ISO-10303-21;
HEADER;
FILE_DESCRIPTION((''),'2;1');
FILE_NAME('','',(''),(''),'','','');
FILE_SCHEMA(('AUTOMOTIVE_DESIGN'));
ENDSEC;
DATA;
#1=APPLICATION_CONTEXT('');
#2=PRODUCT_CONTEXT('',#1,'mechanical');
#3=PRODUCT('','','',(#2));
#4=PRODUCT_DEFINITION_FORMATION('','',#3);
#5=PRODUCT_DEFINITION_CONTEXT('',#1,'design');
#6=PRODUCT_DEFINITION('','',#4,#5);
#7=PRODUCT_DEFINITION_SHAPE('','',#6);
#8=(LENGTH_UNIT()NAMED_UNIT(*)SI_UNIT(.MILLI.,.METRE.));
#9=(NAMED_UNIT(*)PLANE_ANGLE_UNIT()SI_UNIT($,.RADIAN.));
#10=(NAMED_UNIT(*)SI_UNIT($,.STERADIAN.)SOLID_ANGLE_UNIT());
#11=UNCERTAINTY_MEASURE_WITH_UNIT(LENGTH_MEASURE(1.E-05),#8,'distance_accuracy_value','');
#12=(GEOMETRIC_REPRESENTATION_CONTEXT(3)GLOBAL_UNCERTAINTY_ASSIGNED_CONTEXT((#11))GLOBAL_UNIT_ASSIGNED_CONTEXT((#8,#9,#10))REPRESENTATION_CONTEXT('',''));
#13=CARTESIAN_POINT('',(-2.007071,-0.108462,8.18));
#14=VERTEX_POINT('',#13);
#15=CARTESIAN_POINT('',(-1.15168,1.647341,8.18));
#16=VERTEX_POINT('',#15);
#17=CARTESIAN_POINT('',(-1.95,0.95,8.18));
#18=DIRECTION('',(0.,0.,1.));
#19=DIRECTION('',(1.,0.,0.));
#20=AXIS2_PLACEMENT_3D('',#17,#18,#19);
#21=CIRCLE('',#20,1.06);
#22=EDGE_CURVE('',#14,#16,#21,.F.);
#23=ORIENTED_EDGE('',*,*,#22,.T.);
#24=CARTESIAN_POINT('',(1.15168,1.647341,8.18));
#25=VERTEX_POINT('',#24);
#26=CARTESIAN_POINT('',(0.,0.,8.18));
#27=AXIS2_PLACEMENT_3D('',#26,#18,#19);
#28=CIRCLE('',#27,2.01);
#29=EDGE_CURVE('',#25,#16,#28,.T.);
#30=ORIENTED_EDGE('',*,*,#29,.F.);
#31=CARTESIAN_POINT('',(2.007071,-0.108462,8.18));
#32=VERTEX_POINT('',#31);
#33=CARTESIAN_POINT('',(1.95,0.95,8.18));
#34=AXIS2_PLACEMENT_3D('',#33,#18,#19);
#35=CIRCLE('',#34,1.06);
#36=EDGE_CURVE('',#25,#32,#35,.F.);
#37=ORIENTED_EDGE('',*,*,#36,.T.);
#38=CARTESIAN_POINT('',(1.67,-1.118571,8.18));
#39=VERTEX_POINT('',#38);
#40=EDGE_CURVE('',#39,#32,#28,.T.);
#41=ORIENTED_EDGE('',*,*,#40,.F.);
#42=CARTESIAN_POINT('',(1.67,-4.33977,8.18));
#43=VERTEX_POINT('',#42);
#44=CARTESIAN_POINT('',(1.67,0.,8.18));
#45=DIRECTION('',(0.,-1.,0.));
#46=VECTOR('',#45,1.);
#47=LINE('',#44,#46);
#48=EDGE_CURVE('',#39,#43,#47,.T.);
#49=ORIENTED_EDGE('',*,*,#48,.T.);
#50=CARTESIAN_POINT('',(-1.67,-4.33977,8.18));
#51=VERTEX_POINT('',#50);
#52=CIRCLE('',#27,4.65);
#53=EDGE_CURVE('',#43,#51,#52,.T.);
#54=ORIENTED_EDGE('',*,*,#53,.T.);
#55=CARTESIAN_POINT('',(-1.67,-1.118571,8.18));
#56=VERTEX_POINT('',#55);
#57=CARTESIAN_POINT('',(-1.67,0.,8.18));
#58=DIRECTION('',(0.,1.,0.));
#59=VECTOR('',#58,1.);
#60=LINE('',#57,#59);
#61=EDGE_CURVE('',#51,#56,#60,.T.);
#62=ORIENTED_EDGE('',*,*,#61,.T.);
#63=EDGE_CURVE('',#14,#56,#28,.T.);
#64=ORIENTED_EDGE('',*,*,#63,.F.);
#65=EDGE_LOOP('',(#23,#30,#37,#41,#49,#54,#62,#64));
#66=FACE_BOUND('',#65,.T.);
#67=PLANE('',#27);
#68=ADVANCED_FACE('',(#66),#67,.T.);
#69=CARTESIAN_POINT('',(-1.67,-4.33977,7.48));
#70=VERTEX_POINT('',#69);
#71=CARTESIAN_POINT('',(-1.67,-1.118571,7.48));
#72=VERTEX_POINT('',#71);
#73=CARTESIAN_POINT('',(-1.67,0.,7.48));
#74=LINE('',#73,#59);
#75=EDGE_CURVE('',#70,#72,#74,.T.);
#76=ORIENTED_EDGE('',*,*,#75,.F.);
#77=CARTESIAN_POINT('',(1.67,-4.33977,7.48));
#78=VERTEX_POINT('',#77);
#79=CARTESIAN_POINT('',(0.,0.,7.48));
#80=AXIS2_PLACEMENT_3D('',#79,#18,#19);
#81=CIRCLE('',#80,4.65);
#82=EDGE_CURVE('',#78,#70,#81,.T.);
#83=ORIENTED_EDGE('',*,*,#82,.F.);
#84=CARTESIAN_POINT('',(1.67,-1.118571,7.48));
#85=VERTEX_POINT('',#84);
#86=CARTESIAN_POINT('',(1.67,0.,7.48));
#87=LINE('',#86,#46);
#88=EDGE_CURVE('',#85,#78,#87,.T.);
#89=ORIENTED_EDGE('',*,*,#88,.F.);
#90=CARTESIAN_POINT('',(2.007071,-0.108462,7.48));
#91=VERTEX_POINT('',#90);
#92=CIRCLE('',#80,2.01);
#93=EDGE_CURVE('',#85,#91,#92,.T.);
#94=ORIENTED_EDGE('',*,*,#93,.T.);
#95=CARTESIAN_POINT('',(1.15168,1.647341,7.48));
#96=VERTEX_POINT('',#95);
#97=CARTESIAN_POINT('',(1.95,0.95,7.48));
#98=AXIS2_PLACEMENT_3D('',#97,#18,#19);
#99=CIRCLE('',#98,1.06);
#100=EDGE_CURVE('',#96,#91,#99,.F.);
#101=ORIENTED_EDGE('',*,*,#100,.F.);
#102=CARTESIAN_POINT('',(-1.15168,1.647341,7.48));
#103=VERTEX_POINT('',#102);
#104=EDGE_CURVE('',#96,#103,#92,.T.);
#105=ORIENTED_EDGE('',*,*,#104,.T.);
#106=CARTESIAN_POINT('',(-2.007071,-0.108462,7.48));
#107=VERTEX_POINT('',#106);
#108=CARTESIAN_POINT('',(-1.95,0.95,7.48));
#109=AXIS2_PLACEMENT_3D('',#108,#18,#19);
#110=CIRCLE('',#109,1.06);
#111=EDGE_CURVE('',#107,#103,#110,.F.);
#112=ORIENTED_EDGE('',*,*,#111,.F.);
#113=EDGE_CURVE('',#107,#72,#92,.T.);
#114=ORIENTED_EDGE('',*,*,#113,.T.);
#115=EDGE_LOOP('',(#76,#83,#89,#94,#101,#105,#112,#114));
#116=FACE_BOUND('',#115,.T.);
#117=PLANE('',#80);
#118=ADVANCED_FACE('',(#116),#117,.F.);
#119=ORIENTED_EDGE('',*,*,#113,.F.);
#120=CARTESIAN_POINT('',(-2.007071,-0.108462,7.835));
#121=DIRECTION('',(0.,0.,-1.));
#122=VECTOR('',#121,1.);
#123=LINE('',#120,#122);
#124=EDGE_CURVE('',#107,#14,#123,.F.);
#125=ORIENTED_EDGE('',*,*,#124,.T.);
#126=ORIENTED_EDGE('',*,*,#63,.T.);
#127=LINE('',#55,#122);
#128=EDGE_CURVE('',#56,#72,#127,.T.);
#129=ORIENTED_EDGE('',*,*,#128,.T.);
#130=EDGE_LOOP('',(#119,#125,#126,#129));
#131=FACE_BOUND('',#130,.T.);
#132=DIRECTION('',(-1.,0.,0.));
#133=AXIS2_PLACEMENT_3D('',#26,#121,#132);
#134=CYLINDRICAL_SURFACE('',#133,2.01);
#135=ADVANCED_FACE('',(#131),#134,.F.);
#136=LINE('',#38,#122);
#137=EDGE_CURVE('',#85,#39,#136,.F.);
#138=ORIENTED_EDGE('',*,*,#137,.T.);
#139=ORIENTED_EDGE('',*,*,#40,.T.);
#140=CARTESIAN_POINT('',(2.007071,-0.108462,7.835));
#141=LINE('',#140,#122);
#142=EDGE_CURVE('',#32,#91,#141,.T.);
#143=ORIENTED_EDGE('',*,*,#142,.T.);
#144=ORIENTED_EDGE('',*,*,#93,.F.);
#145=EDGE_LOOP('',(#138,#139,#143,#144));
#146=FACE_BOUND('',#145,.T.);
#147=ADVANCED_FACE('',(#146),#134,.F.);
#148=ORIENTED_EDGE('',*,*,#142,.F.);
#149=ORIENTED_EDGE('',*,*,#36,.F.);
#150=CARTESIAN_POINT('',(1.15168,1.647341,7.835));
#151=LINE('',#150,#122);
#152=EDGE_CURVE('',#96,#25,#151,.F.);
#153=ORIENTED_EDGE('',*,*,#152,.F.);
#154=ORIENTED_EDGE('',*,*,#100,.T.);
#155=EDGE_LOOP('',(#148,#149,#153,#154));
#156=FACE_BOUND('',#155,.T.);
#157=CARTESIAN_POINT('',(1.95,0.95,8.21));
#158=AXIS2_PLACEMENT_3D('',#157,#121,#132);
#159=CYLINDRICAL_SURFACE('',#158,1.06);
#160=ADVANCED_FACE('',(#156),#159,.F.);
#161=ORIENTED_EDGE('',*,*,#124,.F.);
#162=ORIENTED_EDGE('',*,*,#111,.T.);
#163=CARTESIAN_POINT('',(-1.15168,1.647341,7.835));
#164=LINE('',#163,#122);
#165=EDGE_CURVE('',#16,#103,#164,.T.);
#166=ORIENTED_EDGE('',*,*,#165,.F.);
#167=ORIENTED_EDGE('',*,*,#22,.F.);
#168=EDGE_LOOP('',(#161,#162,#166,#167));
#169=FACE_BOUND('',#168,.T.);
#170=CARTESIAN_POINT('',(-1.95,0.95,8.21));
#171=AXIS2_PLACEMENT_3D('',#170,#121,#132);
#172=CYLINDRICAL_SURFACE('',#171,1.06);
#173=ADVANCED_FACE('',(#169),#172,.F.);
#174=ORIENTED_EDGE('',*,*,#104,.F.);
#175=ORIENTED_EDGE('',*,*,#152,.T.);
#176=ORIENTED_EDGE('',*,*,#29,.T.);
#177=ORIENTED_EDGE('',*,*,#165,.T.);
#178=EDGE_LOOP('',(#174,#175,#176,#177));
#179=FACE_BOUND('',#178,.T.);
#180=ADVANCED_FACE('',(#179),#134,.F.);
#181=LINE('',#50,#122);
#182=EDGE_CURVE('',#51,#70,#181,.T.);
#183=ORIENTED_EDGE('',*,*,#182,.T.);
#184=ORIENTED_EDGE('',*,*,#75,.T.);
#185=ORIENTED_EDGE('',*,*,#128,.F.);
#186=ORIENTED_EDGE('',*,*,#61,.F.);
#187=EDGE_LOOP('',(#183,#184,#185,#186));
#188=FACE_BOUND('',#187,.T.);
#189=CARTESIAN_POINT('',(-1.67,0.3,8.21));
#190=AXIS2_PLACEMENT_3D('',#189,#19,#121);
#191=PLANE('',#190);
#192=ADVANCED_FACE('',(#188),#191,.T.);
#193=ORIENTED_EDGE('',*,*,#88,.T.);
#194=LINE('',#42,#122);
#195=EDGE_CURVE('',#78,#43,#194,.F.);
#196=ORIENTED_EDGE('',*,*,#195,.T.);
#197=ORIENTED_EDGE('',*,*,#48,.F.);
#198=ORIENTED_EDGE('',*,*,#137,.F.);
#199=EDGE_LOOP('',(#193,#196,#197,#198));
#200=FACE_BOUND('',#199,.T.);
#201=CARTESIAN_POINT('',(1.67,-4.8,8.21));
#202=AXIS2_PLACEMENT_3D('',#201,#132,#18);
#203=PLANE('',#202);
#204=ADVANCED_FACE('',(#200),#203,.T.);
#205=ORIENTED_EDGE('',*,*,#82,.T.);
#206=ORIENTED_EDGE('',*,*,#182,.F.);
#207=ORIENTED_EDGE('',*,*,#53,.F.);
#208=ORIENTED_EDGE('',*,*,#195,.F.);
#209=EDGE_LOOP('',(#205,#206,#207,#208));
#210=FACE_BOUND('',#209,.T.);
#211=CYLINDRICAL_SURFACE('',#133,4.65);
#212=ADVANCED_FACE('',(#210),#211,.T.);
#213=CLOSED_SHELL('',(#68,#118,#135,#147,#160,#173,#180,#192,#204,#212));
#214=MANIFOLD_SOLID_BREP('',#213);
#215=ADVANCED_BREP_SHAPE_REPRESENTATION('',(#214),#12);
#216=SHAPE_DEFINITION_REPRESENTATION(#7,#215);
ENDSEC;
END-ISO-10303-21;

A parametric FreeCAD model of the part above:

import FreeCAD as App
import Part
import Sketcher
from FreeCAD import Vector

doc = App.newDocument("Part")
params = doc.addObject("Spreadsheet::Sheet", "Params")
for row, (alias, value) in enumerate([
    ("sketch1_diameter", "9.3 mm"),
    ("sketch1_diameter2", "4.02 mm"),
    ("pad1_length", "0.7 mm"),
    ("sketch2_height", "5.1 mm"),
    ("sketch2_width", "3.34 mm"),
    ("pocket1_length", "0.75 mm"),
    ("sketch3_diameter", "2.12 mm"),
    ("pocket2_length", "0.75 mm"),
    ("sketch4_diameter", "2.12 mm"),
    ("pocket3_length", "0.75 mm"),
], start=1):
    params.set(f"A{row}", alias)
    params.set(f"B{row}", "=" + value)
    params.setAlias(f"B{row}", alias)

body = doc.addObject("PartDesign::Body", "Body")

# Sketch on XY plane
sketch1 = body.newObject("Sketcher::SketchObject", "Sketch")
sketch1.AttachmentSupport = (doc.getObject("XY_Plane"), [""])
sketch1.MapMode = "FlatFace"
sketch1.AttachmentOffset = App.Placement(Vector(0, 0, 7.48), App.Rotation())
sketch1.addGeometry(Part.Circle(Vector(0, 0, 0), Vector(0, 0, 1), 4.7), False)
sketch1.addGeometry(Part.Circle(Vector(0, 0, 0), Vector(0, 0, 1), 2), False)
sketch1.addConstraint(Sketcher.Constraint("Coincident", 0, 3, -1, 1))
sketch1.addConstraint(Sketcher.Constraint("Coincident", 1, 3, -1, 1))
sketch1.addConstraint(Sketcher.Constraint("Diameter", 0, 9.3))
sketch1.addConstraint(Sketcher.Constraint("Diameter", 1, 4.02))
sketch1.setExpression("Constraints[2]", "Params.sketch1_diameter")
sketch1.setExpression("Constraints[3]", "Params.sketch1_diameter2")
pad1 = body.newObject("PartDesign::Pad", "Pad")
pad1.Profile = sketch1
pad1.setExpression("Length", "Params.pad1_length")

# Sketch on XY plane
sketch2 = body.newObject("Sketcher::SketchObject", "Sketch001")
sketch2.AttachmentSupport = (doc.getObject("XY_Plane"), [""])
sketch2.MapMode = "FlatFace"
sketch2.AttachmentOffset = App.Placement(Vector(0, 0, 7.46), App.Rotation())
sketch2.addGeometry(Part.LineSegment(Vector(-1.7, 0.3, 0), Vector(-1.7, -4.8, 0)), False)
sketch2.addGeometry(Part.LineSegment(Vector(-1.7, -4.8, 0), Vector(1.7, -4.8, 0)), False)
sketch2.addGeometry(Part.LineSegment(Vector(1.7, -4.8, 0), Vector(1.7, 0.3, 0)), False)
sketch2.addGeometry(Part.LineSegment(Vector(1.7, 0.3, 0), Vector(-1.7, 0.3, 0)), False)
sketch2.addConstraint(Sketcher.Constraint("Coincident", 0, 2, 1, 1))
sketch2.addConstraint(Sketcher.Constraint("Coincident", 1, 2, 2, 1))
sketch2.addConstraint(Sketcher.Constraint("Coincident", 2, 2, 3, 1))
sketch2.addConstraint(Sketcher.Constraint("Coincident", 3, 2, 0, 1))
sketch2.addConstraint(Sketcher.Constraint("Vertical", 0))
sketch2.addConstraint(Sketcher.Constraint("Horizontal", 1))
sketch2.addConstraint(Sketcher.Constraint("Vertical", 2))
sketch2.addConstraint(Sketcher.Constraint("Horizontal", 3))
sketch2.addConstraint(Sketcher.Constraint("DistanceY", 0, 2, 0, 1, 5.1))
sketch2.addConstraint(Sketcher.Constraint("DistanceX", 1, 1, 1, 2, 3.34))
sketch2.addConstraint(Sketcher.Constraint("DistanceY", 0, 2, -1, 1, 4.8))
sketch2.addConstraint(Sketcher.Constraint("DistanceX", 0, 2, -1, 1, 1.67))
sketch2.setExpression("Constraints[8]", "Params.sketch2_height")
sketch2.setExpression("Constraints[9]", "Params.sketch2_width")
pocket1 = body.newObject("PartDesign::Pocket", "Pocket")
pocket1.Profile = sketch2
pocket1.setExpression("Length", "Params.pocket1_length")
pocket1.Reversed = True

# Sketch on XY plane
sketch3 = body.newObject("Sketcher::SketchObject", "Sketch002")
sketch3.AttachmentSupport = (doc.getObject("XY_Plane"), [""])
sketch3.MapMode = "FlatFace"
sketch3.AttachmentOffset = App.Placement(Vector(0, 0, 7.46), App.Rotation())
sketch3.addGeometry(Part.Circle(Vector(-1.9, 0.9, 0), Vector(0, 0, 1), 1.1), False)
sketch3.addConstraint(Sketcher.Constraint("Diameter", 0, 2.12))
sketch3.addConstraint(Sketcher.Constraint("DistanceX", 0, 3, -1, 1, 1.95))
sketch3.addConstraint(Sketcher.Constraint("DistanceY", -1, 1, 0, 3, 0.95))
sketch3.setExpression("Constraints[0]", "Params.sketch3_diameter")
pocket2 = body.newObject("PartDesign::Pocket", "Pocket001")
pocket2.Profile = sketch3
pocket2.setExpression("Length", "Params.pocket2_length")
pocket2.Reversed = True

# Sketch on XY plane
sketch4 = body.newObject("Sketcher::SketchObject", "Sketch003")
sketch4.AttachmentSupport = (doc.getObject("XY_Plane"), [""])
sketch4.MapMode = "FlatFace"
sketch4.AttachmentOffset = App.Placement(Vector(0, 0, 7.46), App.Rotation())
sketch4.addGeometry(Part.Circle(Vector(1.9, 0.9, 0), Vector(0, 0, 1), 1.1), False)
sketch4.addConstraint(Sketcher.Constraint("Diameter", 0, 2.12))
sketch4.addConstraint(Sketcher.Constraint("DistanceX", -1, 1, 0, 3, 1.95))
sketch4.addConstraint(Sketcher.Constraint("DistanceY", -1, 1, 0, 3, 0.95))
sketch4.setExpression("Constraints[0]", "Params.sketch4_diameter")
pocket3 = body.newObject("PartDesign::Pocket", "Pocket002")
pocket3.Profile = sketch4
pocket3.setExpression("Length", "Params.pocket3_length")
pocket3.Reversed = True

doc.recompute()
